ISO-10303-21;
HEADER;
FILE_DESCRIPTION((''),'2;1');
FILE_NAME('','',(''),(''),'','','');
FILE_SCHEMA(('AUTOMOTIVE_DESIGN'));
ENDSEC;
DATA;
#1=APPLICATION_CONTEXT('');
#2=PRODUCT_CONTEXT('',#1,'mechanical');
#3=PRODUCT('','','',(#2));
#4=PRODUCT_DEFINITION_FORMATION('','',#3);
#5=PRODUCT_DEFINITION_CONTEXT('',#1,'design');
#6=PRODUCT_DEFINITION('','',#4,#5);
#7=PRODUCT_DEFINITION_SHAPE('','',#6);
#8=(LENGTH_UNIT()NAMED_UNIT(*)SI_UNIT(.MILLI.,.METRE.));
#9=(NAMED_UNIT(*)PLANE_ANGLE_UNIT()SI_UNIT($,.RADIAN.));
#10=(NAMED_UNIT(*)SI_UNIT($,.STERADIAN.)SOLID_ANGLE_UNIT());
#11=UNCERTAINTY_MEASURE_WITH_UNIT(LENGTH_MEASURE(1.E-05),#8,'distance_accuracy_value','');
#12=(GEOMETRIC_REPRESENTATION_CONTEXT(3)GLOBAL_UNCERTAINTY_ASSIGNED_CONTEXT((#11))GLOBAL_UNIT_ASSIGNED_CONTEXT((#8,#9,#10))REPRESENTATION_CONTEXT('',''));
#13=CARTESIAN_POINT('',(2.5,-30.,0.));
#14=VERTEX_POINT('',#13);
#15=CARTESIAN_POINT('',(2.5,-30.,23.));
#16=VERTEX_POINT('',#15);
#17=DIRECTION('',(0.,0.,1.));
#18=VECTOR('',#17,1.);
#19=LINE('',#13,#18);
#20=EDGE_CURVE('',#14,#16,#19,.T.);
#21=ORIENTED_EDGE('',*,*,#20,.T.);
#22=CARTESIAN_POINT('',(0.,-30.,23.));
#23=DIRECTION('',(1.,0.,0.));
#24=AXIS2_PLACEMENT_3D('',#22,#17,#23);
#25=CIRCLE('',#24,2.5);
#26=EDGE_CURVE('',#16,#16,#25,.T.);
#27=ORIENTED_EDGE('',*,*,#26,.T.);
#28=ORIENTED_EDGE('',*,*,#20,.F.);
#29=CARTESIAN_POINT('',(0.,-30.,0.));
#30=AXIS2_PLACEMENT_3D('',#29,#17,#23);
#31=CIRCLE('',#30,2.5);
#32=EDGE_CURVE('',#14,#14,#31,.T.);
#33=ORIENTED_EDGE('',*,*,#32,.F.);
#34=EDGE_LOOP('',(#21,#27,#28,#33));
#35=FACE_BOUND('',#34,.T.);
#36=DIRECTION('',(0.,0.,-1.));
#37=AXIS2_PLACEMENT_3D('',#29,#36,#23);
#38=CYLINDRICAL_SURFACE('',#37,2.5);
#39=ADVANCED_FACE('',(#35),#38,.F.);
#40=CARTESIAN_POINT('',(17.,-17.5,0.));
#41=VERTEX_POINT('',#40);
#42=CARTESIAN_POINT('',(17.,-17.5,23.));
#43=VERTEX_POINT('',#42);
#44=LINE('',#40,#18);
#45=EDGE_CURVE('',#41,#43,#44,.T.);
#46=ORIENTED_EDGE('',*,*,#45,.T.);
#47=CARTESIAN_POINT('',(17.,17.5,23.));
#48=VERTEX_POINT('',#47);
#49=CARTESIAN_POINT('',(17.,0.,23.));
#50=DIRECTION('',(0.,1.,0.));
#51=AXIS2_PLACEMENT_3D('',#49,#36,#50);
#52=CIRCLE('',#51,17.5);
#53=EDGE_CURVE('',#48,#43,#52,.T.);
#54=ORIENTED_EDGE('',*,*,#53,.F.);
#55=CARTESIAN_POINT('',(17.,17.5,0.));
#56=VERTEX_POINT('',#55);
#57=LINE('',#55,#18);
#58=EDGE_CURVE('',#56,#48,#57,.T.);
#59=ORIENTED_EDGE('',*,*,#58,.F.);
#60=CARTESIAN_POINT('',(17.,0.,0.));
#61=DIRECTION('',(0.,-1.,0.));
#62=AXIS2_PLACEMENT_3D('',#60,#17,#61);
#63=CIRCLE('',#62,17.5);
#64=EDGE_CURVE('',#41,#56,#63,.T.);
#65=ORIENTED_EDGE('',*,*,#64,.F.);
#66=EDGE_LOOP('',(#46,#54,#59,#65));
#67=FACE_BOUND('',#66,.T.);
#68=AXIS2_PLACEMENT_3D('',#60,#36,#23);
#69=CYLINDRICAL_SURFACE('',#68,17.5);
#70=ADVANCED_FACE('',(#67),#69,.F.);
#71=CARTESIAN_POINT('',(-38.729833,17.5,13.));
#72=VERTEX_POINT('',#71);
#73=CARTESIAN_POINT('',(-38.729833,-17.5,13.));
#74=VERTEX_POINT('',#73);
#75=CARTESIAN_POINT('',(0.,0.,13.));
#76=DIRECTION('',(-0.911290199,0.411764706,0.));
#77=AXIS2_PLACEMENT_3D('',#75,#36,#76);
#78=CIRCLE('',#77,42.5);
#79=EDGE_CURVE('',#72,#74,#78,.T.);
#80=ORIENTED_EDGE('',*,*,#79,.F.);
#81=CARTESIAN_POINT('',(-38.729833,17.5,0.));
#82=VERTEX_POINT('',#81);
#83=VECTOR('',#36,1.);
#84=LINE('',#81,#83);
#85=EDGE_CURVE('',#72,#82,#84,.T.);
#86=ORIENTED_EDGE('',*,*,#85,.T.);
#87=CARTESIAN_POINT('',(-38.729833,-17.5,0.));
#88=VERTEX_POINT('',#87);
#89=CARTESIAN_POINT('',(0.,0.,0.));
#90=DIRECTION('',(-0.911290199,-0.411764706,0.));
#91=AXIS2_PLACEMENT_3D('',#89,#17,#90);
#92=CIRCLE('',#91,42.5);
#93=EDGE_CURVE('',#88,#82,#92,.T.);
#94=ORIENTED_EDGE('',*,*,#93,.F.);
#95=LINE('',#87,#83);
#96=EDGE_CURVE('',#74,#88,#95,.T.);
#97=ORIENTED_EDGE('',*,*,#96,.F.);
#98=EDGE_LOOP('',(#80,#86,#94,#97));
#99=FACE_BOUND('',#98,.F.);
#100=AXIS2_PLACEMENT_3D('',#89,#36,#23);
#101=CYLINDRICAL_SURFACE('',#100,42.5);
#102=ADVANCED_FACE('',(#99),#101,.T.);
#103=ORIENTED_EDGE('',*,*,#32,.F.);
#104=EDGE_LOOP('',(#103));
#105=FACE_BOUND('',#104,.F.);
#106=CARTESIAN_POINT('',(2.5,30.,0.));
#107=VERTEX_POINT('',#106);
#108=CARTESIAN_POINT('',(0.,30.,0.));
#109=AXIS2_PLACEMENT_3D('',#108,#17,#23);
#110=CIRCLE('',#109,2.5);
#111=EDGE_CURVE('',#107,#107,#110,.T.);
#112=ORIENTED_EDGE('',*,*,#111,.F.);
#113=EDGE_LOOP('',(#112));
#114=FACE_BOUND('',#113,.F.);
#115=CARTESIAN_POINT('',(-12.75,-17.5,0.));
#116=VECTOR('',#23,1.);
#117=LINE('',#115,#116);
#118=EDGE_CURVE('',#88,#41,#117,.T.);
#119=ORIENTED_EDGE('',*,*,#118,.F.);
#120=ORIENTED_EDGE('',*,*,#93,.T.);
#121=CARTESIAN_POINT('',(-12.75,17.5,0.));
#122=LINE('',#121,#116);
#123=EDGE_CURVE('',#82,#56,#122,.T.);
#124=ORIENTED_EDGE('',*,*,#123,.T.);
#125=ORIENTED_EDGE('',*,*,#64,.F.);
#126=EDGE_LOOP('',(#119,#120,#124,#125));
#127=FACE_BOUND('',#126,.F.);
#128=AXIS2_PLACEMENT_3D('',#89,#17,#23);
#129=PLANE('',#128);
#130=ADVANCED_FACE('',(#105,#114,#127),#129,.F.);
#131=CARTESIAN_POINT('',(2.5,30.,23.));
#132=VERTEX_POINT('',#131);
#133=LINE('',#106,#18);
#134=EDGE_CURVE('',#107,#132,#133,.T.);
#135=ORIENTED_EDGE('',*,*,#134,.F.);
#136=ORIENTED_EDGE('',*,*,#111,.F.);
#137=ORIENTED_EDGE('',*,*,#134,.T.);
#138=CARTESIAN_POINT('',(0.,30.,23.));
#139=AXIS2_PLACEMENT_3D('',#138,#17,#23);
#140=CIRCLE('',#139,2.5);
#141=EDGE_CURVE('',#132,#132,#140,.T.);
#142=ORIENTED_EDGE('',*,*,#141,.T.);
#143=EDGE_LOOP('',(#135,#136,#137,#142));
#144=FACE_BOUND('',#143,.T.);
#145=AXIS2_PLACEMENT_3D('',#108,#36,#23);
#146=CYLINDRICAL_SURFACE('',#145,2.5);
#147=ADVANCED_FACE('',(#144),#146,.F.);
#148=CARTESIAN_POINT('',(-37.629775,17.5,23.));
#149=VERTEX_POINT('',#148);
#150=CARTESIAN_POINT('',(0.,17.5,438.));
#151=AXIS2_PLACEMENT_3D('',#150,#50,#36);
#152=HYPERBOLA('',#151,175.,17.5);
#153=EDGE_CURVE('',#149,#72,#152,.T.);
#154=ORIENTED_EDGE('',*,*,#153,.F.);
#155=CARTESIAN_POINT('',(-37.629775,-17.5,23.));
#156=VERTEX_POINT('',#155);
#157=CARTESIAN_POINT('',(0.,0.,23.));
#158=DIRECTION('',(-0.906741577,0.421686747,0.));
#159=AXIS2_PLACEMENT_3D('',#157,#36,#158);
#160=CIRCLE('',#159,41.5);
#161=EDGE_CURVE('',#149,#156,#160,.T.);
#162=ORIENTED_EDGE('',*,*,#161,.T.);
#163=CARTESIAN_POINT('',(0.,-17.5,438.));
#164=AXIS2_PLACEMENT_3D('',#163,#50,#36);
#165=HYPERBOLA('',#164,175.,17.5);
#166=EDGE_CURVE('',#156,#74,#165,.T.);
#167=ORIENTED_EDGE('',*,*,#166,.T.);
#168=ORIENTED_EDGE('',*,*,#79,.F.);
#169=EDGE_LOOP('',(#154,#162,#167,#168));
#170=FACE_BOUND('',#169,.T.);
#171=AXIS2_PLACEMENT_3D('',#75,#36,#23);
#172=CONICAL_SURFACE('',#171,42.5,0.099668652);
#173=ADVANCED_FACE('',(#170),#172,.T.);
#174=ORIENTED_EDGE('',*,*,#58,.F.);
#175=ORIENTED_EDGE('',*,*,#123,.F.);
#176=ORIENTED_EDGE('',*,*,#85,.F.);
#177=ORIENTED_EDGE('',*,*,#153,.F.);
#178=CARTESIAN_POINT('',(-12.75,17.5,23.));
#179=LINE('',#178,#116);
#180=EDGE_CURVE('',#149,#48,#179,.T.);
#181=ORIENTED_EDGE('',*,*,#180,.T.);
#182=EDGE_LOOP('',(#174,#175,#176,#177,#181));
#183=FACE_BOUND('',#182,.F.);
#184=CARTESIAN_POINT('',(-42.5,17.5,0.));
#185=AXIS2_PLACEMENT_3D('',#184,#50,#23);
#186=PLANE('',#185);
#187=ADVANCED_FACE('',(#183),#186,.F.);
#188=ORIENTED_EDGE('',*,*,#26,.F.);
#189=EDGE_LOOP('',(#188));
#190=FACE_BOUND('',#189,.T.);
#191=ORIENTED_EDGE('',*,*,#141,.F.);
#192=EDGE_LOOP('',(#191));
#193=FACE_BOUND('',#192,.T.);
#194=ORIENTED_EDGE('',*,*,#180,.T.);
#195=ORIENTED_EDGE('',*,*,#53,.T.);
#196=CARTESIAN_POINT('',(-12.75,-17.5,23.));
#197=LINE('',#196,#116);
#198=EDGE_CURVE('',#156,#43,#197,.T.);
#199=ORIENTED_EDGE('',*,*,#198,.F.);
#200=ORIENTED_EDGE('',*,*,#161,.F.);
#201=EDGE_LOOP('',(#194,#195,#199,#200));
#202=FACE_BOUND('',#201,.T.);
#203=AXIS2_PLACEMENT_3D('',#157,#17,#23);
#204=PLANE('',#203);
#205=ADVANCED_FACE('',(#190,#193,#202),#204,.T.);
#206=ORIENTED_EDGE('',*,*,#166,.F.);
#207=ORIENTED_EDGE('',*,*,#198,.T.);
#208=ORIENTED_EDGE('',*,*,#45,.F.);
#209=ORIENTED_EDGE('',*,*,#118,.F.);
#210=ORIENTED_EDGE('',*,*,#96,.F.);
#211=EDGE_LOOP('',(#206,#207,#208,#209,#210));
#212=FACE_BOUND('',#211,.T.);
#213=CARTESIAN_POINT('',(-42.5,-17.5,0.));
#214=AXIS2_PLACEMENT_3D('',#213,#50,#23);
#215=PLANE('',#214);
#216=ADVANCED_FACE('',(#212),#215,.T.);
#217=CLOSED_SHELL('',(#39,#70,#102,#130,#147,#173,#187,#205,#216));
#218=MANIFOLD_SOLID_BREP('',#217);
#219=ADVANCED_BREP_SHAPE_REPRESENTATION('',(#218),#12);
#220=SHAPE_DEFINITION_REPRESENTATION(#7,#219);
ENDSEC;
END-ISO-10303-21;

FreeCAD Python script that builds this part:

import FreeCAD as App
import Part
import Sketcher

V = App.Vector
Q = App.Units.Quantity


def edges_at(feature, points):
    """Names of the edges that pass closest to the given points."""
    edges = feature.Shape.Edges
    near = lambda p: min(range(len(edges)), key=lambda i: edges[i].distToShape(Part.Vertex(*p))[0])
    return sorted({f"Edge{near(p) + 1}" for p in points})


def add_polygon(sketch, points):
    """Adds a closed chain of lines whose ends are joined by coincident constraints."""
    first, n = sketch.GeometryCount, len(points)
    for a, b in zip(points, points[1:] + points[:1]):
        sketch.addGeometry(Part.LineSegment(App.Vector(*a, 0), App.Vector(*b, 0)), False)
    for i in range(n):
        sketch.addConstraint(Sketcher.Constraint("Coincident", first + i, 2, first + (i + 1) % n, 1))

doc = App.newDocument("Part")
body = doc.addObject("PartDesign::Body", "Body")

sketch1 = body.newObject("Sketcher::SketchObject", "Sketch")
sketch1.AttachmentSupport = (doc.getObject("XY_Plane"), [""])
sketch1.MapMode = "FlatFace"
sketch1.addGeometry(Part.Circle(V(0, -30, 0), V(0, 0, 1), 2.5), False)
sketch1.addConstraint(Sketcher.Constraint("PointOnObject", 0, 3, -2))
sketch1.addConstraint(Sketcher.Constraint("Diameter", 0, Q("5 mm")))
sketch1.addConstraint(Sketcher.Constraint("DistanceY", 0, 3, -1, 1, Q("30 mm")))
pad1 = body.newObject("PartDesign::Pad", "Pad")
pad1.Profile = sketch1
pad1.Length = 23
body2 = doc.addObject("PartDesign::Body", "Body001")

sketch2 = body2.newObject("Sketcher::SketchObject", "Sketch001")
sketch2.AttachmentSupport = (doc.getObject("XY_Plane001"), [""])
sketch2.MapMode = "FlatFace"
sketch2.addGeometry(Part.Circle(V(0, 30, 0), V(0, 0, 1), 2.5), False)
sketch2.addConstraint(Sketcher.Constraint("PointOnObject", 0, 3, -2))
sketch2.addConstraint(Sketcher.Constraint("Diameter", 0, Q("5 mm")))
sketch2.addConstraint(Sketcher.Constraint("DistanceY", -1, 1, 0, 3, Q("30 mm")))
pad2 = body2.newObject("PartDesign::Pad", "Pad001")
pad2.Profile = sketch2
pad2.Length = 23
body3 = doc.addObject("PartDesign::Body", "Body002")

sketch3 = body3.newObject("Sketcher::SketchObject", "Sketch002")
sketch3.AttachmentSupport = (doc.getObject("XY_Plane002"), [""])
sketch3.MapMode = "FlatFace"
add_polygon(sketch3, [(-42, 18), (-42, -18), (17, -18), (17, 18)])
sketch3.addConstraint(Sketcher.Constraint("Vertical", 0))
sketch3.addConstraint(Sketcher.Constraint("Horizontal", 1))
sketch3.addConstraint(Sketcher.Constraint("Vertical", 2))
sketch3.addConstraint(Sketcher.Constraint("Horizontal", 3))
sketch3.addConstraint(Sketcher.Constraint("DistanceY", 0, 2, 0, 1, Q("35 mm")))
sketch3.addConstraint(Sketcher.Constraint("DistanceX", 1, 1, 1, 2, Q("59.5 mm")))
sketch3.addConstraint(Sketcher.Constraint("DistanceX", -1, 1, 1, 2, Q("17 mm")))
sketch3.addConstraint(Sketcher.Constraint("DistanceY", 0, 2, -1, 1, Q("17.5 mm")))
pad3 = body3.newObject("PartDesign::Pad", "Pad002")
pad3.Profile = sketch3
pad3.Length = 23
body4 = doc.addObject("PartDesign::Body", "Body003")

sketch4 = body4.newObject("Sketcher::SketchObject", "Sketch003")
sketch4.AttachmentSupport = (doc.getObject("XY_Plane003"), [""])
sketch4.MapMode = "FlatFace"
sketch4.addGeometry(Part.Circle(V(17, 0, 0), V(0, 0, 1), 18), False)
sketch4.addConstraint(Sketcher.Constraint("PointOnObject", 0, 3, -1))
sketch4.addConstraint(Sketcher.Constraint("Diameter", 0, Q("35 mm")))
sketch4.addConstraint(Sketcher.Constraint("DistanceX", -1, 1, 0, 3, Q("17 mm")))
pad4 = body4.newObject("PartDesign::Pad", "Pad003")
pad4.Profile = sketch4
pad4.Length = 23
body5 = doc.addObject("PartDesign::Body", "Body004")

sketch5 = body5.newObject("Sketcher::SketchObject", "Sketch004")
sketch5.AttachmentSupport = (doc.getObject("XY_Plane004"), [""])
sketch5.MapMode = "FlatFace"
sketch5.addGeometry(Part.Circle(V(0, 0, 0), V(0, 0, 1), 42), False)
sketch5.addConstraint(Sketcher.Constraint("Coincident", 0, 3, -1, 1))
sketch5.addConstraint(Sketcher.Constraint("Diameter", 0, Q("85 mm")))
pad5 = body5.newObject("PartDesign::Pad", "Pad004")
pad5.Profile = sketch5
pad5.Length = 23
doc.recompute()

chamfer = body5.newObject("PartDesign::Chamfer", "Chamfer")
chamfer.Base = (pad5, edges_at(pad5, [(-42.5, 0, 23)]))
chamfer.ChamferType = "Two distances"
chamfer.Size = 10
chamfer.Size2 = 1
doc.recompute()

boolean = body5.newObject("PartDesign::Boolean", "Boolean")
boolean.Type = "Cut"
boolean.addObjects([body4])
doc.recompute()

boolean2 = body5.newObject("PartDesign::Boolean", "Boolean001")
boolean2.Type = "Cut"
boolean2.addObjects([body3])
doc.recompute()

boolean3 = body5.newObject("PartDesign::Boolean", "Boolean002")
boolean3.Type = "Cut"
boolean3.addObjects([body2])
doc.recompute()

boolean4 = body5.newObject("PartDesign::Boolean", "Boolean003")
boolean4.Type = "Cut"
boolean4.addObjects([body])

doc.recompute()
